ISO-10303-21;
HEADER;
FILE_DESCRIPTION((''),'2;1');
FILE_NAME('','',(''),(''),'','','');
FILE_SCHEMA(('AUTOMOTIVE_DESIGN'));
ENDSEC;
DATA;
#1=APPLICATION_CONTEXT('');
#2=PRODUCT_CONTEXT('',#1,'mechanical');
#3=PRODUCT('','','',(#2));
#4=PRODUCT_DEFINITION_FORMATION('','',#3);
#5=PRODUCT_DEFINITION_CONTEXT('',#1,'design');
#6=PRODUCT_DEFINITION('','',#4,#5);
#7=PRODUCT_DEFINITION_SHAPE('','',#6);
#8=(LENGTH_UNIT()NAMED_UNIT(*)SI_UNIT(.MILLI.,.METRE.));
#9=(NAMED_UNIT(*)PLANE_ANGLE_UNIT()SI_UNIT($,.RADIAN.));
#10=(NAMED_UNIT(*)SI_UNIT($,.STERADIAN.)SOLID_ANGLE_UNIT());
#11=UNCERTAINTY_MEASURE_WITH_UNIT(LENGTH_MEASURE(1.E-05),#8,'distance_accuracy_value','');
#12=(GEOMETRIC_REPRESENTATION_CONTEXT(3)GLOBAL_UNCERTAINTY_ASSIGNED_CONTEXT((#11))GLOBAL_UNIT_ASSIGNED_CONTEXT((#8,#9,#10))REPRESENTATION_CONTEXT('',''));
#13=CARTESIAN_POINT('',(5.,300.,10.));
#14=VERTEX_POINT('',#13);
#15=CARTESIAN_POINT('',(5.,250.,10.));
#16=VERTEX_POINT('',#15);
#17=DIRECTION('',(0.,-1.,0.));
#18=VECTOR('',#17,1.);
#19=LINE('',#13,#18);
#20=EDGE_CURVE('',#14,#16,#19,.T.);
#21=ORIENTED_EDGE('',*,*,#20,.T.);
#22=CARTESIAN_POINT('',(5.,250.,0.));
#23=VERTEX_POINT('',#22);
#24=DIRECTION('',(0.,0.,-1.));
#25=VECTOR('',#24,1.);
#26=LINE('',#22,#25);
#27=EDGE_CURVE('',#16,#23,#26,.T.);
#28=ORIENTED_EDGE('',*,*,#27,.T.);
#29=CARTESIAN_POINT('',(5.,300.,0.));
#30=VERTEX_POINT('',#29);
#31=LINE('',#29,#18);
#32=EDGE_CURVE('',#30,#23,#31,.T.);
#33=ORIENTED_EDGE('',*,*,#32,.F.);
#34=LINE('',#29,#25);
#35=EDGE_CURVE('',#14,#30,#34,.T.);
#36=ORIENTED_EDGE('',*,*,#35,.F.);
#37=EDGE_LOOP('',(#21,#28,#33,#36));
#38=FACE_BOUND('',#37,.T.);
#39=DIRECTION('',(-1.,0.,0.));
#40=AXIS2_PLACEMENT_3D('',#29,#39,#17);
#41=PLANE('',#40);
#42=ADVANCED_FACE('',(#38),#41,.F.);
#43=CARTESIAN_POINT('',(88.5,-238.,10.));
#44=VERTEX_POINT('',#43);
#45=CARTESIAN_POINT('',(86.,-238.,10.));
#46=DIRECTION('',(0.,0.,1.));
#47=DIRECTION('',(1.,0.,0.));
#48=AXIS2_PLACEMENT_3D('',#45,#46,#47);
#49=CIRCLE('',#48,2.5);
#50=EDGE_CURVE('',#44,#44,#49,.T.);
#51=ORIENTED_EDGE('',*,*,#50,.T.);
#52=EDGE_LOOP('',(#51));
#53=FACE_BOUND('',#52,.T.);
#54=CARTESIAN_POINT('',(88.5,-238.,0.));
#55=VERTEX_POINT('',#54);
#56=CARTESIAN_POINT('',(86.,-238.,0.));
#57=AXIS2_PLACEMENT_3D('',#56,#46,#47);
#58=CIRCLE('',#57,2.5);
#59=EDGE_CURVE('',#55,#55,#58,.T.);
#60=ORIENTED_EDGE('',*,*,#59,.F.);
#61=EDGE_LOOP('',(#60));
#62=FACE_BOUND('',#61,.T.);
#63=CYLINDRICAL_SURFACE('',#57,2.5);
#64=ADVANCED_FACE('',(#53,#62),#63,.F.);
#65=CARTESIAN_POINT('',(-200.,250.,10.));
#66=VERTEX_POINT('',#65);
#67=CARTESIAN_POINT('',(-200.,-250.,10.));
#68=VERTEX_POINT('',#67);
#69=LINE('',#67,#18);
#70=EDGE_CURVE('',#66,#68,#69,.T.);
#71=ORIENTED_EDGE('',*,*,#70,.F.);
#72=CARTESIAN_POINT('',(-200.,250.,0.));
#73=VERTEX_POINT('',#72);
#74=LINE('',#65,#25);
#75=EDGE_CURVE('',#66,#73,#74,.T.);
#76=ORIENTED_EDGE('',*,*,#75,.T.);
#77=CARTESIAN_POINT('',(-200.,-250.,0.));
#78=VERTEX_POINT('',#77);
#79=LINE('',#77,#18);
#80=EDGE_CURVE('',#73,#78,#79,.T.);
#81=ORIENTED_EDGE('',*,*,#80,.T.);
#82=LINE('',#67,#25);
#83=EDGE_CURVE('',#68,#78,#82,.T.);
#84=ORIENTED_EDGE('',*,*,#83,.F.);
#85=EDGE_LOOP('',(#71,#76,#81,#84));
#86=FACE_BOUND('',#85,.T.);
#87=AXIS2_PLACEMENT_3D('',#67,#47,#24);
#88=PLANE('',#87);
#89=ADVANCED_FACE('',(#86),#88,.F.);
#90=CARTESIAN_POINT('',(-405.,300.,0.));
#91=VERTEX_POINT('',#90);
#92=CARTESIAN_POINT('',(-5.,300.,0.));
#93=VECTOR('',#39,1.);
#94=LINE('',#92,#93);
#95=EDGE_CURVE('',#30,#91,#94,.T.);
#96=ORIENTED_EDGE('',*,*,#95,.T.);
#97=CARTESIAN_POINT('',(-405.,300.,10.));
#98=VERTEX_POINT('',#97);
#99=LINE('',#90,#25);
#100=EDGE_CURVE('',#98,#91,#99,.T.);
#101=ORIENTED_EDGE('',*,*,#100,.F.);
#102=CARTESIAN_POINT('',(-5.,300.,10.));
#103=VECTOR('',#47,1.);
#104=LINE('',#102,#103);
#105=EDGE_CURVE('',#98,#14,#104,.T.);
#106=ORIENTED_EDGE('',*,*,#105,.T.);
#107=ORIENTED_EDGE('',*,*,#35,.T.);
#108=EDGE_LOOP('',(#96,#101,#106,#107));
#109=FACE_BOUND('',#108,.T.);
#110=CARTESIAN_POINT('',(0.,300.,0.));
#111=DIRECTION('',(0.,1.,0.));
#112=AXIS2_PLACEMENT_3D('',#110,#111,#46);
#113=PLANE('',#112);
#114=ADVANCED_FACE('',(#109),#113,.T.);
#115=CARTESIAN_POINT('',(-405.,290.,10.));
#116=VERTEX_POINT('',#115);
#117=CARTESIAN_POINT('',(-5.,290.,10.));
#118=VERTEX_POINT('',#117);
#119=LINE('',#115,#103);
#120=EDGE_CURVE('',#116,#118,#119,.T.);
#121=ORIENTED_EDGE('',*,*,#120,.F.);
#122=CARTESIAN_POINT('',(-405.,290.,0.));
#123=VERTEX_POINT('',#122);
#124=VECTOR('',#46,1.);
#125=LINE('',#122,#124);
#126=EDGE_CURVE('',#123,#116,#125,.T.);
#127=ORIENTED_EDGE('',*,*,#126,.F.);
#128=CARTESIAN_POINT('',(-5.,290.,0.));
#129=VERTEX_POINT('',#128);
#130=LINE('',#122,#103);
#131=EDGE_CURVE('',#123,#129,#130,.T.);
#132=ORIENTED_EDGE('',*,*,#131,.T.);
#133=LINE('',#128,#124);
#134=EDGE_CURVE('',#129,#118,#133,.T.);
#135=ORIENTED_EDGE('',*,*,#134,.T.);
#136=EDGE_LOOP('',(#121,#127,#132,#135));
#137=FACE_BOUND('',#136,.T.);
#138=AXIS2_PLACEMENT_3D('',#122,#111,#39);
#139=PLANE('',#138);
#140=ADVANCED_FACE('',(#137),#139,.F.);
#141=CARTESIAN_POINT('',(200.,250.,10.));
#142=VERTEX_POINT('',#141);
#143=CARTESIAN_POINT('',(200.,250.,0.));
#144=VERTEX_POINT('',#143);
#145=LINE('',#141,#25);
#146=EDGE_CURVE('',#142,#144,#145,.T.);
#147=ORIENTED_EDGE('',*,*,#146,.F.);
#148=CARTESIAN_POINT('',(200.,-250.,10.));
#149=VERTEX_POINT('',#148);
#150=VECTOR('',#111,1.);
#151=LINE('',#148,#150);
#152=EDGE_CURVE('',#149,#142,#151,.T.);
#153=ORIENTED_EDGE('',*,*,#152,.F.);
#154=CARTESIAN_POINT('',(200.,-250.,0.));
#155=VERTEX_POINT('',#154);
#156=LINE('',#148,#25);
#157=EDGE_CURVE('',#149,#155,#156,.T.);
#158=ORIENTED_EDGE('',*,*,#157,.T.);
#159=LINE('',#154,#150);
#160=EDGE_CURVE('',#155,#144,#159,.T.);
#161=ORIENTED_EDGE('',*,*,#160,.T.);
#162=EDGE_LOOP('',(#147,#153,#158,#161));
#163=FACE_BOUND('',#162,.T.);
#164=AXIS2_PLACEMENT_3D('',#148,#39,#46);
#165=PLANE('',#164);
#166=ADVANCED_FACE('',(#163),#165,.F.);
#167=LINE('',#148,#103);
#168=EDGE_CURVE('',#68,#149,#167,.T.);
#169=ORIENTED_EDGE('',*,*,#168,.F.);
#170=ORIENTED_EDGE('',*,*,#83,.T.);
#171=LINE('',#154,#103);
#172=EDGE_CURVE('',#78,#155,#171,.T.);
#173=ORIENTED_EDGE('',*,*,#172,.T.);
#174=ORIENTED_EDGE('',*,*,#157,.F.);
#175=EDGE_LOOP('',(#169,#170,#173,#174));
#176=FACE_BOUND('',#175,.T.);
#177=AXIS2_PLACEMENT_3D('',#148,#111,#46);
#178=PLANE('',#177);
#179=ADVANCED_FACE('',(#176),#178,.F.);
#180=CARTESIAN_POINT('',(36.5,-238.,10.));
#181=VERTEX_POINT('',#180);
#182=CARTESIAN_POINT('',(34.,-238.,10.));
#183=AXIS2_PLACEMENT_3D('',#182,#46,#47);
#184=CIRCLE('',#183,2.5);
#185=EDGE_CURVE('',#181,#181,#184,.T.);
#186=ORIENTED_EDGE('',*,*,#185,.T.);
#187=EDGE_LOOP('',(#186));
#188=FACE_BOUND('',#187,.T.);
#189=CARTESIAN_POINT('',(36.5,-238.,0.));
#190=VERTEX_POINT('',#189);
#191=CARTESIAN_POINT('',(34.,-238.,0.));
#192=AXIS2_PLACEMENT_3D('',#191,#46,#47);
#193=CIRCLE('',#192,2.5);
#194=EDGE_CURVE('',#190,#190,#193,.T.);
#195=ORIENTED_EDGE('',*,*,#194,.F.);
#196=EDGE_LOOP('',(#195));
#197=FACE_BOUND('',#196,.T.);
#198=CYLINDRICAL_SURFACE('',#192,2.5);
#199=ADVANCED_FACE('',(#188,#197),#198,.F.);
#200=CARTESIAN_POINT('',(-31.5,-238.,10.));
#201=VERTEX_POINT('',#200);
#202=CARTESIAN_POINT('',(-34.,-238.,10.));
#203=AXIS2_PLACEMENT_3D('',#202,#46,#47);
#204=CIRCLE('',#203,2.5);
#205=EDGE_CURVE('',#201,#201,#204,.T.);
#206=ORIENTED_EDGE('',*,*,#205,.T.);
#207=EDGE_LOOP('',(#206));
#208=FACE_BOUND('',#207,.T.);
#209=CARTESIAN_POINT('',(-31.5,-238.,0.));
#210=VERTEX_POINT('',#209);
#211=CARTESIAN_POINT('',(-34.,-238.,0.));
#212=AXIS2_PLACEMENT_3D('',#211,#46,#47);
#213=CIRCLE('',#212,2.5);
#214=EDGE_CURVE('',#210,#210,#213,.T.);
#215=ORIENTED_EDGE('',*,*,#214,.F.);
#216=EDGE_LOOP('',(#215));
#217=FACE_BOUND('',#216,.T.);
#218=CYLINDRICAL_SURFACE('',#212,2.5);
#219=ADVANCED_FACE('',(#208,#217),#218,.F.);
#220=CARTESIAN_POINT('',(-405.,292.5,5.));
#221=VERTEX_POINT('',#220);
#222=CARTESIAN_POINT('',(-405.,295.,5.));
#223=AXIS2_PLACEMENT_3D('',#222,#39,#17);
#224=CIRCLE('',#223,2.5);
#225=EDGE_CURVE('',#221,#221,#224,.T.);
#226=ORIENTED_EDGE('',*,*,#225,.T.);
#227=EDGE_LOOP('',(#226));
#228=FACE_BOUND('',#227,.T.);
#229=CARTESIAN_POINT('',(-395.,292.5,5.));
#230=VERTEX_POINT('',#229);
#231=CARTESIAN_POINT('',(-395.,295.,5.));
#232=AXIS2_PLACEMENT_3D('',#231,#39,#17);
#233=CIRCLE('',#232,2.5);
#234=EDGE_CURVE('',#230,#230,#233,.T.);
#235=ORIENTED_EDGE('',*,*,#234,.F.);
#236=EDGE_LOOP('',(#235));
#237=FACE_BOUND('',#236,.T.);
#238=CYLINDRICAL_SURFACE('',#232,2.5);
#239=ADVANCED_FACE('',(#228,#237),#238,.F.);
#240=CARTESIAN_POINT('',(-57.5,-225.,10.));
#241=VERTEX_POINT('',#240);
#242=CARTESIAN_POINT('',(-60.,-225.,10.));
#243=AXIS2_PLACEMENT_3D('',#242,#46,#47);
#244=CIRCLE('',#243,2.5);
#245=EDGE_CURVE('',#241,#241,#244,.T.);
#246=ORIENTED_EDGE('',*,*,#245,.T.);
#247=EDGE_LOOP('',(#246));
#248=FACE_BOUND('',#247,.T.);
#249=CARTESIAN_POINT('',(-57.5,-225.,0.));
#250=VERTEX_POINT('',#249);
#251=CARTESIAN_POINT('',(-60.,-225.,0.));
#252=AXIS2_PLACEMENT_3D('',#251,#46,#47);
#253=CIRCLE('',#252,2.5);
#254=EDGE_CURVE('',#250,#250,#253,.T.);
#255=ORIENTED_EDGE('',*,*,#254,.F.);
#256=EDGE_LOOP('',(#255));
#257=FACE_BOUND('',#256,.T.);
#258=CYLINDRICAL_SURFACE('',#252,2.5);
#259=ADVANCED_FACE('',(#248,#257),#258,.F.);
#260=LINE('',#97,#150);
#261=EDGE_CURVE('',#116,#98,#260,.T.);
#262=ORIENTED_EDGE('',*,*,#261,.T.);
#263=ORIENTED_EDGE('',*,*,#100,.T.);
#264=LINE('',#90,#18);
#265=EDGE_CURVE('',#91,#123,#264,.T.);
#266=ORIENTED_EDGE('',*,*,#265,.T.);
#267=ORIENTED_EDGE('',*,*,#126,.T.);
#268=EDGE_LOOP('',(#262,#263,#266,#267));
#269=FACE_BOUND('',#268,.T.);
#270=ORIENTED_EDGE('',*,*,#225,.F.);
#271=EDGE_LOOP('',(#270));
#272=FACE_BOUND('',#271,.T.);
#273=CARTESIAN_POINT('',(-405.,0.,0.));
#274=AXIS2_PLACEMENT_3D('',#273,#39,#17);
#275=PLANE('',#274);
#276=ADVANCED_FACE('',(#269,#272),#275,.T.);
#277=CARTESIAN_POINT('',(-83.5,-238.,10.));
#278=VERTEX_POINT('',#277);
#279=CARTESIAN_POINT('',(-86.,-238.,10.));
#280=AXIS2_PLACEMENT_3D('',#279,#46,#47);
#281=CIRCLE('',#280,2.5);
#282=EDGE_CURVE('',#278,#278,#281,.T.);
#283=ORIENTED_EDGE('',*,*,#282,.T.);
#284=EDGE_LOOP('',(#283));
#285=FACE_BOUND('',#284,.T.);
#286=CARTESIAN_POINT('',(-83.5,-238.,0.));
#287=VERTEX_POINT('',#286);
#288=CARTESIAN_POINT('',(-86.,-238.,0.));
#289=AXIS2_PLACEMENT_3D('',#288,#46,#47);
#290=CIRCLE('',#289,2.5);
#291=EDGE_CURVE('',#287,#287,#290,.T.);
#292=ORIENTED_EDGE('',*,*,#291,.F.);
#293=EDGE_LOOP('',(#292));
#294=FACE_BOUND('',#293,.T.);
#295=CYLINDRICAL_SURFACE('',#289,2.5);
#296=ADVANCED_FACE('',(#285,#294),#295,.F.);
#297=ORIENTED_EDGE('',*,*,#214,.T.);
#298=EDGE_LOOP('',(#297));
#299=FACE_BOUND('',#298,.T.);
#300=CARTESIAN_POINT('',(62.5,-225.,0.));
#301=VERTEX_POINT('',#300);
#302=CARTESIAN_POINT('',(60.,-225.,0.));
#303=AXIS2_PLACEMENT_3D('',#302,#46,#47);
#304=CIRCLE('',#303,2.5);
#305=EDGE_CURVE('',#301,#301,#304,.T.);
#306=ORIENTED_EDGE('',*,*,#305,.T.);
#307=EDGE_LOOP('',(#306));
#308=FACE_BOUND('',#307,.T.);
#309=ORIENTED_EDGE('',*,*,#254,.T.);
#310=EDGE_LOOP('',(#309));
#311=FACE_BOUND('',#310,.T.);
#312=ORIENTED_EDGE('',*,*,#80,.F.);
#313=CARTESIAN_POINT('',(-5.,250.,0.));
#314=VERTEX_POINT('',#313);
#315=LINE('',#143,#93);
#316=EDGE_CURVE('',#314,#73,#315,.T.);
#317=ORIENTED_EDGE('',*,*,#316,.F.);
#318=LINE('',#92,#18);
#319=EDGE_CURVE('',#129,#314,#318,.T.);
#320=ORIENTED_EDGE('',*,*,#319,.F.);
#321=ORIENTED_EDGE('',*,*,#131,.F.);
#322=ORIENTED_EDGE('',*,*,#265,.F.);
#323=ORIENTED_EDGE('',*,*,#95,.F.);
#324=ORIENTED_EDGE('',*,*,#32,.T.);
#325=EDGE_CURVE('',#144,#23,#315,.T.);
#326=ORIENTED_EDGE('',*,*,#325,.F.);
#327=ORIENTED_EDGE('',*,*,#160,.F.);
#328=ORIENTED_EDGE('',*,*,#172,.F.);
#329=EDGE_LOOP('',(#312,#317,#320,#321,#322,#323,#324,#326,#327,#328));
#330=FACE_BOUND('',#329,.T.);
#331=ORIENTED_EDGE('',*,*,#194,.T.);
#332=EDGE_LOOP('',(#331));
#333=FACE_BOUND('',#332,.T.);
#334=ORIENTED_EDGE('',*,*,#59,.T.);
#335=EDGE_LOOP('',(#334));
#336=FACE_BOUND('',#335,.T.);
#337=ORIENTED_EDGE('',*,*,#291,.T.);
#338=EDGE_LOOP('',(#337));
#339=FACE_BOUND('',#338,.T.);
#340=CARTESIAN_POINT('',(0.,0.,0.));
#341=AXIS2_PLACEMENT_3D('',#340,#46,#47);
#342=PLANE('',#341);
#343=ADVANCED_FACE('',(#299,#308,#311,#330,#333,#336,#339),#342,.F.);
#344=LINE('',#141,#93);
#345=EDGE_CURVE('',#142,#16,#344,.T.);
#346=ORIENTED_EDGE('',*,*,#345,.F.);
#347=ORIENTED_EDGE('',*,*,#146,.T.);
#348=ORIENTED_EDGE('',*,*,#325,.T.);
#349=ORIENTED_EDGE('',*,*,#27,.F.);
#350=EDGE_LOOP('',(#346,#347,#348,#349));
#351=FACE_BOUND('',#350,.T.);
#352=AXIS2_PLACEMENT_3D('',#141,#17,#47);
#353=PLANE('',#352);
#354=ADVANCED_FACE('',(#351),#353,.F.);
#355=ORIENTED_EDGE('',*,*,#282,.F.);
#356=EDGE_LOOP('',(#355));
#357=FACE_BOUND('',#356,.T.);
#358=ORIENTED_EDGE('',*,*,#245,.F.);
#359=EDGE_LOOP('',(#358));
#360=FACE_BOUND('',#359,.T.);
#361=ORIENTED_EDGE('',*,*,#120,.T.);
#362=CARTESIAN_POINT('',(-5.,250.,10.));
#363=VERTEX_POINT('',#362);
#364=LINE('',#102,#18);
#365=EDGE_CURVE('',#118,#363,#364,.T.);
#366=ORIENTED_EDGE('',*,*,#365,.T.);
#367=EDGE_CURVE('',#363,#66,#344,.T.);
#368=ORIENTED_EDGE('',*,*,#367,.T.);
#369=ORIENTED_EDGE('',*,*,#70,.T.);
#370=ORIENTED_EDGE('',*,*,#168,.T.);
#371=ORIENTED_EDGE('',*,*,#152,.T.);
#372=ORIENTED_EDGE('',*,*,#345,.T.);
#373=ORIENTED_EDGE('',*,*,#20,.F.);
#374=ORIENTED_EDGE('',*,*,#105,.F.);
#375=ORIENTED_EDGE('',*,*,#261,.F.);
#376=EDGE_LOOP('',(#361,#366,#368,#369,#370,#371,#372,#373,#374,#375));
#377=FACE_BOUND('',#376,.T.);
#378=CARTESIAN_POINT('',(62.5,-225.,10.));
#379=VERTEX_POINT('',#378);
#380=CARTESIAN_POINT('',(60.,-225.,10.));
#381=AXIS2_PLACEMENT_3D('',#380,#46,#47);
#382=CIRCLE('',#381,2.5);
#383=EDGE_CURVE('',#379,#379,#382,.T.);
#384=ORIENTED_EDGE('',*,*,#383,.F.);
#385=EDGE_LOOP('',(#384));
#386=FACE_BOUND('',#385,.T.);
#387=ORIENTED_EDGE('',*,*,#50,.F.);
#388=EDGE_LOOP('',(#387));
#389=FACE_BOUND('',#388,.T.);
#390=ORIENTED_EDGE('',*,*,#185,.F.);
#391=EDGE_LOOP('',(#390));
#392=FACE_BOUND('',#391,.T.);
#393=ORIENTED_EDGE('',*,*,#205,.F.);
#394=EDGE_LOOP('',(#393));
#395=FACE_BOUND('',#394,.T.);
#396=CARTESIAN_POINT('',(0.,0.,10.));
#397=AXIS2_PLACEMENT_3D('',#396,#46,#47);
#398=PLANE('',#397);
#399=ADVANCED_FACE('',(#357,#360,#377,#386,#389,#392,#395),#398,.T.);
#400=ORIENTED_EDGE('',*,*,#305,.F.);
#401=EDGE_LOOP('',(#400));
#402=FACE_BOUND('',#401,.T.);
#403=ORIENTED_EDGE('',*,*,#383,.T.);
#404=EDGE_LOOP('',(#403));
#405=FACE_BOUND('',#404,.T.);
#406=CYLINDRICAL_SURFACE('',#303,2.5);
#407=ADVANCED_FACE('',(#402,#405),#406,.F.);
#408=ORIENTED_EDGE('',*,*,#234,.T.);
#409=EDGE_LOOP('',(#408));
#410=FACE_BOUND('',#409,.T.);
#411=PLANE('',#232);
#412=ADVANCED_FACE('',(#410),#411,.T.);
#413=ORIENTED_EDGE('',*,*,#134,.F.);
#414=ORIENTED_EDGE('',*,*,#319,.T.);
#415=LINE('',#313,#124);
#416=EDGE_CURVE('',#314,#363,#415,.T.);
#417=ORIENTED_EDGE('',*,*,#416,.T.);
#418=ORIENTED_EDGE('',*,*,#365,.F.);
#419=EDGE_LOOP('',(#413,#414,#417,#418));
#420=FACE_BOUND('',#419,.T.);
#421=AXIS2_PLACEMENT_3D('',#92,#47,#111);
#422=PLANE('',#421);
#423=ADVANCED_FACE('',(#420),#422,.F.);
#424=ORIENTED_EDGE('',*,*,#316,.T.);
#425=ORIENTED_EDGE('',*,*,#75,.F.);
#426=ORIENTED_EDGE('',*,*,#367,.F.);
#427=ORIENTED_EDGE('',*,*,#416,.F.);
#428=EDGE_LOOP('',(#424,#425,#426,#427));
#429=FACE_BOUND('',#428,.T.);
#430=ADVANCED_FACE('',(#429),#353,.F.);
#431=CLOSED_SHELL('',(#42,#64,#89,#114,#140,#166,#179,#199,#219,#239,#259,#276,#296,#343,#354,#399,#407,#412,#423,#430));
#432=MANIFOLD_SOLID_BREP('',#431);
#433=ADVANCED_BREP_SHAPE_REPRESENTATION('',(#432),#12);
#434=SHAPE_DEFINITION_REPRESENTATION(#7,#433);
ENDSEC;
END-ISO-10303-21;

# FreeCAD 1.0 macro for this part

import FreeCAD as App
import Part
import Sketcher
Q = App.Units.Quantity

doc = App.newDocument("Part")
params = doc.addObject("Spreadsheet::Sheet", "Params")
for row, (alias, value) in enumerate([
    ("sketch1_width", "400 mm"),
    ("sketch1_height", "500 mm"),
    ("pad1_length", "10 mm"),
    ("sketch2_diameter", "5 mm"),
    ("sketch3_width", "10 mm"),
    ("pad2_length", "50 mm"),
    ("sketch4_width", "10 mm"),
    ("pad3_length", "400 mm"),
    ("sketch5_diameter", "5 mm"),
    ("pocket2_length", "10 mm"),
], start=1):
    params.set(f"A{row}", alias)
    params.set(f"B{row}", "=" + value)
    params.setAlias(f"B{row}", alias)

body = doc.addObject("PartDesign::Body", "Body")

# Sketch on XY plane
sketch1 = body.newObject("Sketcher::SketchObject", "Sketch")
sketch1.AttachmentSupport = (doc.getObject("XY_Plane"), [""])
sketch1.MapMode = "FlatFace"
sketch1.addGeometry([
    Part.LineSegment(App.Vector(-200, 250, 0), App.Vector(-200, -250, 0)),
    Part.LineSegment(App.Vector(-200, -250, 0), App.Vector(200, -250, 0)),
    Part.LineSegment(App.Vector(200, -250, 0), App.Vector(200, 250, 0)),
    Part.LineSegment(App.Vector(200, 250, 0), App.Vector(-200, 250, 0)),
], False)
sketch1.addConstraint([
    Sketcher.Constraint("Coincident", 0, 2, 1, 1),
    Sketcher.Constraint("Coincident", 1, 2, 2, 1),
    Sketcher.Constraint("Coincident", 2, 2, 3, 1),
    Sketcher.Constraint("Coincident", 3, 2, 0, 1),
    Sketcher.Constraint("Vertical", 0),
    Sketcher.Constraint("Horizontal", 1),
    Sketcher.Constraint("Vertical", 2),
    Sketcher.Constraint("Horizontal", 3),
    Sketcher.Constraint("Symmetric", 0, 2, 2, 2, -1, 1),
    Sketcher.Constraint("DistanceX", 1, 1, 1, 2, Q("400 mm")),
    Sketcher.Constraint("DistanceY", 0, 2, 0, 1, Q("500 mm")),
])
sketch1.setExpression("Constraints[9]", "Params.sketch1_width")
sketch1.setExpression("Constraints[10]", "Params.sketch1_height")
pad1 = body.newObject("PartDesign::Pad", "Pad")
pad1.Profile = sketch1
pad1.setExpression("Length", "Params.pad1_length")

# Sketch on XY plane
sketch2 = body.newObject("Sketcher::SketchObject", "Sketch001")
sketch2.AttachmentSupport = (doc.getObject("XY_Plane"), [""])
sketch2.MapMode = "FlatFace"
sketch2.AttachmentOffset = App.Placement(App.Vector(0, 0, 10), App.Rotation())
sketch2.addGeometry([
    Part.Circle(App.Vector(-86, -238, 0), App.Vector(0, 0, 1), 2.5),  # 0
    Part.Circle(App.Vector(-60, -225, 0), App.Vector(0, 0, 1), 2.5),  # 1
    Part.Circle(App.Vector(-34, -238, 0), App.Vector(0, 0, 1), 2.5),  # 2
    Part.Circle(App.Vector(34, -238, 0), App.Vector(0, 0, 1), 2.5),  # 3
    Part.Circle(App.Vector(60, -225, 0), App.Vector(0, 0, 1), 2.5),  # 4
    Part.Circle(App.Vector(86, -238, 0), App.Vector(0, 0, 1), 2.5),  # 5
], False)
sketch2.addConstraint([
    Sketcher.Constraint("Equal", 0, 1),
    Sketcher.Constraint("Equal", 1, 2),
    Sketcher.Constraint("Equal", 2, 3),
    Sketcher.Constraint("Equal", 3, 4),
    Sketcher.Constraint("Equal", 4, 5),
    Sketcher.Constraint("Symmetric", 2, 3, 3, 3, -2),
    Sketcher.Constraint("Symmetric", 1, 3, 4, 3, -2),
    Sketcher.Constraint("Symmetric", 0, 3, 5, 3, -2),
    Sketcher.Constraint("Horizontal", 0, 3, 2, 3),
    Sketcher.Constraint("Diameter", 0, Q("5 mm")),
    Sketcher.Constraint("DistanceX", 0, 3, -1, 1, Q("86 mm")),
    Sketcher.Constraint("DistanceY", 0, 3, -1, 1, Q("238 mm")),
    Sketcher.Constraint("DistanceX", 1, 3, -1, 1, Q("60 mm")),
    Sketcher.Constraint("DistanceY", 1, 3, -1, 1, Q("225 mm")),
    Sketcher.Constraint("DistanceX", 2, 3, -1, 1, Q("34 mm")),
])
sketch2.setExpression("Constraints[9]", "Params.sketch2_diameter")
pocket1 = body.newObject("PartDesign::Pocket", "Pocket")
pocket1.Profile = sketch2
pocket1.Type = "ThroughAll"

# Sketch on XZ plane
sketch3 = body.newObject("Sketcher::SketchObject", "Sketch002")
sketch3.AttachmentSupport = (doc.getObject("XZ_Plane"), [""])
sketch3.MapMode = "FlatFace"
sketch3.AttachmentOffset = App.Placement(App.Vector(0, 0, -250), App.Rotation())
sketch3.addGeometry([
    Part.LineSegment(App.Vector(-5, 0, 0), App.Vector(-5, 10, 0)),
    Part.LineSegment(App.Vector(-5, 10, 0), App.Vector(5, 10, 0)),
    Part.LineSegment(App.Vector(5, 10, 0), App.Vector(5, 0, 0)),
    Part.LineSegment(App.Vector(5, 0, 0), App.Vector(-5, 0, 0)),
], False)
sketch3.addConstraint([
    Sketcher.Constraint("Coincident", 0, 2, 1, 1),
    Sketcher.Constraint("Coincident", 1, 2, 2, 1),
    Sketcher.Constraint("Coincident", 2, 2, 3, 1),
    Sketcher.Constraint("Coincident", 3, 2, 0, 1),
    Sketcher.Constraint("Vertical", 0),
    Sketcher.Constraint("Horizontal", 1),
    Sketcher.Constraint("Vertical", 2),
    Sketcher.Constraint("Horizontal", 3),
    Sketcher.Constraint("Symmetric", 2, 2, 3, 2, -1, 1),
    Sketcher.Constraint("Equal", 3, 0),
    Sketcher.Constraint("DistanceX", 1, 1, 1, 2, Q("10 mm")),
])
sketch3.setExpression("Constraints[10]", "Params.sketch3_width")
pad2 = body.newObject("PartDesign::Pad", "Pad001")
pad2.Profile = sketch3
pad2.setExpression("Length", "Params.pad2_length")
pad2.Reversed = True

# Sketch on YZ plane
sketch4 = body.newObject("Sketcher::SketchObject", "Sketch003")
sketch4.AttachmentSupport = (doc.getObject("YZ_Plane"), [""])
sketch4.MapMode = "FlatFace"
sketch4.AttachmentOffset = App.Placement(App.Vector(0, 0, -5), App.Rotation())
sketch4.addGeometry([
    Part.LineSegment(App.Vector(300, 0, 0), App.Vector(290, 0, 0)),
    Part.LineSegment(App.Vector(290, 0, 0), App.Vector(290, 10, 0)),
    Part.LineSegment(App.Vector(290, 10, 0), App.Vector(300, 10, 0)),
    Part.LineSegment(App.Vector(300, 10, 0), App.Vector(300, 0, 0)),
], False)
sketch4.addConstraint([
    Sketcher.Constraint("Coincident", 0, 2, 1, 1),
    Sketcher.Constraint("Coincident", 1, 2, 2, 1),
    Sketcher.Constraint("Coincident", 2, 2, 3, 1),
    Sketcher.Constraint("Coincident", 3, 2, 0, 1),
    Sketcher.Constraint("Horizontal", 0),
    Sketcher.Constraint("Vertical", 1),
    Sketcher.Constraint("Horizontal", 2),
    Sketcher.Constraint("Vertical", 3),
    Sketcher.Constraint("PointOnObject", 0, 2, -1),
    Sketcher.Constraint("Equal", 2, 1),
    Sketcher.Constraint("DistanceX", 0, 2, 0, 1, Q("10 mm")),
    Sketcher.Constraint("DistanceX", -1, 1, 0, 2, Q("290 mm")),
])
sketch4.setExpression("Constraints[10]", "Params.sketch4_width")
pad3 = body.newObject("PartDesign::Pad", "Pad002")
pad3.Profile = sketch4
pad3.setExpression("Length", "Params.pad3_length")
pad3.Reversed = True

# Sketch on YZ plane
sketch5 = body.newObject("Sketcher::SketchObject", "Sketch004")
sketch5.AttachmentSupport = (doc.getObject("YZ_Plane"), [""])
sketch5.MapMode = "FlatFace"
sketch5.AttachmentOffset = App.Placement(App.Vector(0, 0, -405), App.Rotation())
sketch5.addGeometry(Part.Circle(App.Vector(295, 5, 0), App.Vector(0, 0, 1), 2.5), False)
sketch5.addConstraint([
    Sketcher.Constraint("Diameter", 0, Q("5 mm")),
    Sketcher.Constraint("DistanceX", -1, 1, 0, 3, Q("295 mm")),
    Sketcher.Constraint("DistanceY", -1, 1, 0, 3, Q("5 mm")),
])
sketch5.setExpression("Constraints[0]", "Params.sketch5_diameter")
pocket2 = body.newObject("PartDesign::Pocket", "Pocket001")
pocket2.Profile = sketch5
pocket2.setExpression("Length", "Params.pocket2_length")
pocket2.Reversed = True

doc.recompute()
